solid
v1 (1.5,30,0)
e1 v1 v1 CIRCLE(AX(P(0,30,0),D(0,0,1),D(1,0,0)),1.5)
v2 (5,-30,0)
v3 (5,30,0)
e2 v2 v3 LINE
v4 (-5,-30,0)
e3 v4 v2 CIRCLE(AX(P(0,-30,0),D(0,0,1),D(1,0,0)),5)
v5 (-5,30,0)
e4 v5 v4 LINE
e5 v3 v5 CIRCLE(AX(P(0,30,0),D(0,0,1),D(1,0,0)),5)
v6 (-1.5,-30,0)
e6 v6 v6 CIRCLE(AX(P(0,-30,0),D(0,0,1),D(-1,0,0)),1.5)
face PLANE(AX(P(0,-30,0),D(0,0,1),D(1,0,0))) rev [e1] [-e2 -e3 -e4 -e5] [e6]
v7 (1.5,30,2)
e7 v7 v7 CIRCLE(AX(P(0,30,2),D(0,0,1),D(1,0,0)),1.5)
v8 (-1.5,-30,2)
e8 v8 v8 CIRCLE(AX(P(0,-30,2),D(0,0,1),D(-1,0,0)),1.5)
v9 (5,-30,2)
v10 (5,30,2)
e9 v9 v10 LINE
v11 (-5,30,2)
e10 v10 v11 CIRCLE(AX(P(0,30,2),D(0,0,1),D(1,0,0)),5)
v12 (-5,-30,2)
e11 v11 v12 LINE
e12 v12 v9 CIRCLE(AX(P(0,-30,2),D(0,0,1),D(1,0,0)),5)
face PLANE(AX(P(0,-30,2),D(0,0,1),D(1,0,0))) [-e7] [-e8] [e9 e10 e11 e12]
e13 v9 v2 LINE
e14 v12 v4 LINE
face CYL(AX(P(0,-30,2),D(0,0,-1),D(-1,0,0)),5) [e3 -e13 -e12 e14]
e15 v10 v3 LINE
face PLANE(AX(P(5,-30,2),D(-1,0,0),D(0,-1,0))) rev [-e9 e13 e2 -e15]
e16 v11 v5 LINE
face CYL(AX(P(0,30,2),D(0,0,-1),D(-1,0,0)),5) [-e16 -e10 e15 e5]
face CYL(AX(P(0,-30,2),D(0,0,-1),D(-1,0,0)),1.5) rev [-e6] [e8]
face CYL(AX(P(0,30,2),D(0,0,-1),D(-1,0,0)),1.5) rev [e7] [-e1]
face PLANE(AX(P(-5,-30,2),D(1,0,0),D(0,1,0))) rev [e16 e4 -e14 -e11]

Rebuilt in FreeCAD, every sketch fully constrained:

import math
import FreeCAD as App
import Part
import Sketcher
from FreeCAD import Vector

doc = App.newDocument("Part")
params = doc.addObject("Spreadsheet::Sheet", "Params")
for row, (alias, value) in enumerate([
    ("sketch1_diameter", "3 mm"),
    ("sketch1_radius", "5 mm"),
    ("sketch1_height", "60 mm"),
    ("pad1_length", "2 mm"),
], start=1):
    params.set(f"A{row}", alias)
    params.set(f"B{row}", "=" + value)
    params.setAlias(f"B{row}", alias)

body = doc.addObject("PartDesign::Body", "Body")

sketch1 = doc.addObject("Sketcher::SketchObject", "Sketch")
body.addObject(sketch1)
sketch1.AttachmentSupport = (doc.XY_Plane, [""])
sketch1.MapMode = "FlatFace"
sketch1.addGeometry(Part.LineSegment(Vector(-5, 30, 0), Vector(-5, -30, 0)), False)
sketch1.addGeometry(Part.ArcOfCircle(Part.Circle(Vector(0, -30, 0), Vector(0, 0, 1), 5), math.radians(180), math.radians(360)), False)
sketch1.addGeometry(Part.LineSegment(Vector(5, -30, 0), Vector(5, 30, 0)), False)
sketch1.addGeometry(Part.ArcOfCircle(Part.Circle(Vector(0, 30, 0), Vector(0, 0, 1), 5), math.radians(0), math.radians(180)), False)
sketch1.addGeometry(Part.Circle(Vector(0, -30, 0), Vector(0, 0, 1), 1.5), False)
sketch1.addGeometry(Part.Circle(Vector(0, 30, 0), Vector(0, 0, 1), 1.5), False)
sketch1.addConstraint(Sketcher.Constraint("Tangent", 0, 2, 1, 1))
sketch1.addConstraint(Sketcher.Constraint("Tangent", 1, 2, 2, 1))
sketch1.addConstraint(Sketcher.Constraint("Tangent", 2, 2, 3, 1))
sketch1.addConstraint(Sketcher.Constraint("Tangent", 3, 2, 0, 1))
sketch1.addConstraint(Sketcher.Constraint("Vertical", 0))
sketch1.addConstraint(Sketcher.Constraint("Vertical", 2))
sketch1.addConstraint(Sketcher.Constraint("Coincident", 4, 3, 1, 3))
sketch1.addConstraint(Sketcher.Constraint("Coincident", 5, 3, 3, 3))
sketch1.addConstraint(Sketcher.Constraint("Equal", 4, 5))
sketch1.addConstraint(Sketcher.Constraint("Symmetric", 1, 3, 3, 3, -1, 1))
sketch1.addConstraint(Sketcher.Constraint("Diameter", 4, 3.0))
sketch1.addConstraint(Sketcher.Constraint("Radius", 1, 5.0))
sketch1.addConstraint(Sketcher.Constraint("DistanceY", 0, 2, 0, 1, 60.0))
sketch1.setExpression("Constraints[10]", "Params.sketch1_diameter")
sketch1.setExpression("Constraints[11]", "Params.sketch1_radius")
sketch1.setExpression("Constraints[12]", "Params.sketch1_height")
pad1 = doc.addObject("PartDesign::Pad", "Pad")
body.addObject(pad1)
pad1.Profile = sketch1
pad1.setExpression("Length", "Params.pad1_length")

doc.recompute()
